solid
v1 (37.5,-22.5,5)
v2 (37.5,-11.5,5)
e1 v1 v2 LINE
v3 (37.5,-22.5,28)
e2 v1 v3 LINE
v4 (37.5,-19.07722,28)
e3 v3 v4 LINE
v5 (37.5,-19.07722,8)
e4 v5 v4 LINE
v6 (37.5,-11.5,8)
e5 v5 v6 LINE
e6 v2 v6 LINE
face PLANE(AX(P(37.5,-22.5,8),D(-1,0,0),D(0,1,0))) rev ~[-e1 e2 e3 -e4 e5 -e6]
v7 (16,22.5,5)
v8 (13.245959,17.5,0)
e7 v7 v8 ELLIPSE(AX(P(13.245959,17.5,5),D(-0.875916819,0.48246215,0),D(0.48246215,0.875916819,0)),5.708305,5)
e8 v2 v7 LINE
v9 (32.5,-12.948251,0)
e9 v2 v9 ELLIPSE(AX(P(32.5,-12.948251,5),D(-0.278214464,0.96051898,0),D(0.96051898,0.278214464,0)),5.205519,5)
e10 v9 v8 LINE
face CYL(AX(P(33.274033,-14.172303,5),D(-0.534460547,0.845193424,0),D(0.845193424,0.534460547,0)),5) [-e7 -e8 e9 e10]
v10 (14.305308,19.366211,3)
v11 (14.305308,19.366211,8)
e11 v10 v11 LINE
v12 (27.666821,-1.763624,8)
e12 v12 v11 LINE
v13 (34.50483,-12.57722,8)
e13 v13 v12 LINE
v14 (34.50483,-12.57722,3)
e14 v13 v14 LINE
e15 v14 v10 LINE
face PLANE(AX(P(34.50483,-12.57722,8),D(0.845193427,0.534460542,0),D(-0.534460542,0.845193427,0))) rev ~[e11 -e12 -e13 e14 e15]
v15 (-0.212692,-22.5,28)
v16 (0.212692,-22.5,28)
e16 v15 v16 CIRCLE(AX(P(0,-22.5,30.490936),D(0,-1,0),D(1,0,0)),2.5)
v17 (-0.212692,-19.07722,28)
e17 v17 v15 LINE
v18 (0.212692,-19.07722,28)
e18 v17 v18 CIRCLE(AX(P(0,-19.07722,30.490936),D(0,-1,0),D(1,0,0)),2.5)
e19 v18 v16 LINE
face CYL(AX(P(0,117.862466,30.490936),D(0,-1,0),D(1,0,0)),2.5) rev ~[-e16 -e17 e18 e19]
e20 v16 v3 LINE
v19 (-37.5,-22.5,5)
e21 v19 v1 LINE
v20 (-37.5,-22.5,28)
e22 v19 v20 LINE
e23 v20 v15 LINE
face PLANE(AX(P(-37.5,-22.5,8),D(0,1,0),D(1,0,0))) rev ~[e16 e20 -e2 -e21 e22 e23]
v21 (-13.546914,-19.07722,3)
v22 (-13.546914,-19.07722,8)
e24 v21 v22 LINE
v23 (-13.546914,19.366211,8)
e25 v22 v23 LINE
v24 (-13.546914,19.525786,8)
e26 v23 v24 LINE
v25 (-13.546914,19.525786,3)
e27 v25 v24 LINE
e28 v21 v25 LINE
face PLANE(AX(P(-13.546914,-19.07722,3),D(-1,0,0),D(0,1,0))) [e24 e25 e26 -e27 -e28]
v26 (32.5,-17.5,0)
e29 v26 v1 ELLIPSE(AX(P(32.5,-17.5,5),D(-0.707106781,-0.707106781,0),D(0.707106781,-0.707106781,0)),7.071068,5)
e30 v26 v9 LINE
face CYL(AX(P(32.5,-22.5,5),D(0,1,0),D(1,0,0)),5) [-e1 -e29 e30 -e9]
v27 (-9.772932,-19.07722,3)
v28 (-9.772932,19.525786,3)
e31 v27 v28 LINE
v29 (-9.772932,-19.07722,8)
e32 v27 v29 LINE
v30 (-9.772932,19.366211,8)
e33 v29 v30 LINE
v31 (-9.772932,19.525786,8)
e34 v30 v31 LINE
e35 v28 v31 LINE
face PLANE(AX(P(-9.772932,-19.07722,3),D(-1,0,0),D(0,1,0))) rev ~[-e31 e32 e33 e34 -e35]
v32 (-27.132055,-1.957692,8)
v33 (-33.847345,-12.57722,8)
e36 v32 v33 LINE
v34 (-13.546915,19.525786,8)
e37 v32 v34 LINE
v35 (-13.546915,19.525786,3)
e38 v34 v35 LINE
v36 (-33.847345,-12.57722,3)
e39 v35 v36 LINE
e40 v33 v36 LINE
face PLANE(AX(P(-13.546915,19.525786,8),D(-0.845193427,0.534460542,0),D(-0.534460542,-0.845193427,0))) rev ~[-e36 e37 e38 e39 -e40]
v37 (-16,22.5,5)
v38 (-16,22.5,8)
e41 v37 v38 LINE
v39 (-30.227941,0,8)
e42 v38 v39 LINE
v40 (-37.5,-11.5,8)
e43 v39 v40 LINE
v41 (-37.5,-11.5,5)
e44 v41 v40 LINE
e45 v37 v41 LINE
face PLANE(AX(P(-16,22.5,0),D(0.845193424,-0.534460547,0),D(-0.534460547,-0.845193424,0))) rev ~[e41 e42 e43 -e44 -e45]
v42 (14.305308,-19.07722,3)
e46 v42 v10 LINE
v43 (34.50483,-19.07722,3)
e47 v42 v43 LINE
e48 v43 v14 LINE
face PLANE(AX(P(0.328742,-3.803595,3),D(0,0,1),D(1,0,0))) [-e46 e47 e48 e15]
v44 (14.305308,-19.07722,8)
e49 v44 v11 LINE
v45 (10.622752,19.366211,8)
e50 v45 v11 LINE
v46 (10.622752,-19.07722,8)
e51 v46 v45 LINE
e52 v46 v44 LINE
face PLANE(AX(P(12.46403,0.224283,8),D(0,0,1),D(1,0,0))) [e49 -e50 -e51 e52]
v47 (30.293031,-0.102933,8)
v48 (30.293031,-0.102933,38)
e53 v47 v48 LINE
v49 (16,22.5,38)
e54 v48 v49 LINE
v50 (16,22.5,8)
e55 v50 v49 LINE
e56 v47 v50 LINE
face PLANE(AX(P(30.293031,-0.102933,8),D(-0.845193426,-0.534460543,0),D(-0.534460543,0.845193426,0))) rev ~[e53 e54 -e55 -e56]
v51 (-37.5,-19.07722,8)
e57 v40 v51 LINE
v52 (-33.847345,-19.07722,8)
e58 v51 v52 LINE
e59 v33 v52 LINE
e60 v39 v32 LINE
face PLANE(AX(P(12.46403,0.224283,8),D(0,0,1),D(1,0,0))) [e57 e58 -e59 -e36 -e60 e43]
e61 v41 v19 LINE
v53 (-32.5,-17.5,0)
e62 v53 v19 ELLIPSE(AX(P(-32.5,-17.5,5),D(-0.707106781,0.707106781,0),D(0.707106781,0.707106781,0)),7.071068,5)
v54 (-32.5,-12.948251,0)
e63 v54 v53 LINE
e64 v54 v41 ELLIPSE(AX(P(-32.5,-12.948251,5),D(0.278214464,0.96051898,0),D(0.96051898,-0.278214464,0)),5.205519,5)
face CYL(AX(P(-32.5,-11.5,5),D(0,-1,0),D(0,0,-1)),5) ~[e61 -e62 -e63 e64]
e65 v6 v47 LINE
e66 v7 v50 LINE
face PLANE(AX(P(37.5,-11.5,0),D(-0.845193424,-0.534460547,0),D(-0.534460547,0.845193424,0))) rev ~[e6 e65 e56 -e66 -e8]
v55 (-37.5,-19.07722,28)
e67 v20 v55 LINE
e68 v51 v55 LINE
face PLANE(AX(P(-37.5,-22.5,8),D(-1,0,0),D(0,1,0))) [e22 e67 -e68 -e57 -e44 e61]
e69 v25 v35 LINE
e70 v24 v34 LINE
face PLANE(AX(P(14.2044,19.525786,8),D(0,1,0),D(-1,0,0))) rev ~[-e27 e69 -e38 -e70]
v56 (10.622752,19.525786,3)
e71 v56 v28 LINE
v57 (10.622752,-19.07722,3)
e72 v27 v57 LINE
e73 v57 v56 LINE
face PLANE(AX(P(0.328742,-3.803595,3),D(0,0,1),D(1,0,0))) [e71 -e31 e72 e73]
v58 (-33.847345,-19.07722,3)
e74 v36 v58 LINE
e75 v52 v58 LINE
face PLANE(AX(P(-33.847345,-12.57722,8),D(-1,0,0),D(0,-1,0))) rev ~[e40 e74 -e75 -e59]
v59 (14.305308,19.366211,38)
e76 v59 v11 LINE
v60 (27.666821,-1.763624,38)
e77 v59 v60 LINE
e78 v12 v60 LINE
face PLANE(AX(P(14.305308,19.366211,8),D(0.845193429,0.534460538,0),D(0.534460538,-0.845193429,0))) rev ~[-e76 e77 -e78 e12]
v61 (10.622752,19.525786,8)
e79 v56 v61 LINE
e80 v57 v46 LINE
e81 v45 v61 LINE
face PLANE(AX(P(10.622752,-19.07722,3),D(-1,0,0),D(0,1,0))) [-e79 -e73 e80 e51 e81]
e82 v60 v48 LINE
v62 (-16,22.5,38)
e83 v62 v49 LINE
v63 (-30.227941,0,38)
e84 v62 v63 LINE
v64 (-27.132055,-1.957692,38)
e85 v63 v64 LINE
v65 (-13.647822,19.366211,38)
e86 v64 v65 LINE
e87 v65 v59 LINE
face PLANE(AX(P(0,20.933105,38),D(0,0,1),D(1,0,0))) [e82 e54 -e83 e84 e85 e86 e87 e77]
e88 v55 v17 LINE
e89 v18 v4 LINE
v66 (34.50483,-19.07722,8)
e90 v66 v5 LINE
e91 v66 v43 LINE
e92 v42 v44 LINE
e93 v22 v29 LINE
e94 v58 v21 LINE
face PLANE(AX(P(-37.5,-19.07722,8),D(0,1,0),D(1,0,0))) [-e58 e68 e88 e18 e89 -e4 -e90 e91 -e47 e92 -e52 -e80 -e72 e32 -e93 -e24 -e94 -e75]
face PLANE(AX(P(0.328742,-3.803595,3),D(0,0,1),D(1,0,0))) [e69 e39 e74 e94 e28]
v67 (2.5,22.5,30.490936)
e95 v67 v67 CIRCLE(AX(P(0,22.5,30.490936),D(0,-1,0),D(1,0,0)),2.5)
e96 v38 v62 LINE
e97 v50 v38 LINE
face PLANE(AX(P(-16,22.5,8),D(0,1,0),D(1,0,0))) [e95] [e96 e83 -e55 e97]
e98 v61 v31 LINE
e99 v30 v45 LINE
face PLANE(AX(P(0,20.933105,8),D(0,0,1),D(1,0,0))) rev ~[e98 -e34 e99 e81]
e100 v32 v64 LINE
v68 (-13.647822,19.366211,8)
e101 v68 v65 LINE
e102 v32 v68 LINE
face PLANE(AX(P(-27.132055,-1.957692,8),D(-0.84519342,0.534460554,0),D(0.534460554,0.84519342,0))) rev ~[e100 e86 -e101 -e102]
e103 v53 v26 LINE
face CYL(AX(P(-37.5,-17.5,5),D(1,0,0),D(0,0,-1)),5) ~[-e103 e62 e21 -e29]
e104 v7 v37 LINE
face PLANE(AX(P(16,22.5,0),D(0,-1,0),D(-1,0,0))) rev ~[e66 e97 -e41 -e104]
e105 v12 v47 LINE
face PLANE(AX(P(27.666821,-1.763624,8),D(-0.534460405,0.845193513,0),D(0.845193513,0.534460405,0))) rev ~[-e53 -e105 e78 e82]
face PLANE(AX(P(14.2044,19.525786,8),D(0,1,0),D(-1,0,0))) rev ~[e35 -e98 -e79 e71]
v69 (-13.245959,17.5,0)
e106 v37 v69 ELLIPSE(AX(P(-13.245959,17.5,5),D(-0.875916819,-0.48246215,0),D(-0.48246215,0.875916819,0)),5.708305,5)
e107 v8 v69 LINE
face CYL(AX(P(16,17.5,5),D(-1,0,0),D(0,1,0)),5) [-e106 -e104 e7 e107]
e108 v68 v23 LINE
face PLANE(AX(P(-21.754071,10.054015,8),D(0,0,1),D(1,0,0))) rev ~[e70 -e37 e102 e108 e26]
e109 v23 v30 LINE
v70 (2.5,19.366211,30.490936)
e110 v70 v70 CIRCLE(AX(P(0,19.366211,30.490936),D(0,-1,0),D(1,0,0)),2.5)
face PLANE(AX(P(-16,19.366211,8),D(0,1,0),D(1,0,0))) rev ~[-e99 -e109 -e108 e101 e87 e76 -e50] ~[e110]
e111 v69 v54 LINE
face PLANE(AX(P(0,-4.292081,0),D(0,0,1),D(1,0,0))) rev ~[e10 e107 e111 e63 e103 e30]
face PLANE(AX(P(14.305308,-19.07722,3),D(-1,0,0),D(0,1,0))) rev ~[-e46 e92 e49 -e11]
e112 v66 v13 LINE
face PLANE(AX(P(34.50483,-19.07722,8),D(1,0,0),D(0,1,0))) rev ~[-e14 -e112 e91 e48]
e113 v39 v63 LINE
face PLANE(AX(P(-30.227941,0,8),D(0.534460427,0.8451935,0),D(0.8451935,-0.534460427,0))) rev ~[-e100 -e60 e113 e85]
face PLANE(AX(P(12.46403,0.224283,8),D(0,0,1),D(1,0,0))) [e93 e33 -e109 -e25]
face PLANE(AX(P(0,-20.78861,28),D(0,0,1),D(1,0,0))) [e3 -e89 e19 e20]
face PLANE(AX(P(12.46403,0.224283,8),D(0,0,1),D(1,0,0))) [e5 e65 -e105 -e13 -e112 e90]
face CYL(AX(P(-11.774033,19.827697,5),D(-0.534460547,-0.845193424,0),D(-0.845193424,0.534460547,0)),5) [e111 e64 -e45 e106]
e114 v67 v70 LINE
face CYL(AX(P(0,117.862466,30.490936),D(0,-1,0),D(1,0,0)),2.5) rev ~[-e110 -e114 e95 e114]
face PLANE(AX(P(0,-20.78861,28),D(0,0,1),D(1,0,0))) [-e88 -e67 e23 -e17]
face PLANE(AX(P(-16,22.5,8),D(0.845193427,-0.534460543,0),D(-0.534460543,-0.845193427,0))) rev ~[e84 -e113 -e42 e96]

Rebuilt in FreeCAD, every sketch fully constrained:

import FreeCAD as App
import Part
import Sketcher
from FreeCAD import Vector


def edges_at(feature, points):
    """Names of the edges that pass closest to the given points."""
    edges = feature.Shape.Edges
    near = lambda p: min(range(len(edges)), key=lambda i: edges[i].distToShape(Part.Vertex(*p))[0])
    return sorted({f"Edge{near(p) + 1}" for p in points})


def add_polygon(sketch, points):
    """Adds a closed chain of lines whose ends are joined by coincident constraints."""
    first, n = sketch.GeometryCount, len(points)
    for a, b in zip(points, points[1:] + points[:1]):
        sketch.addGeometry(Part.LineSegment(App.Vector(*a, 0), App.Vector(*b, 0)), False)
    for i in range(n):
        sketch.addConstraint(Sketcher.Constraint("Coincident", first + i, 2, first + (i + 1) % n, 1))

doc = App.newDocument("Part")
body = doc.addObject("PartDesign::Body", "Body")

sketch1 = doc.addObject("Sketcher::SketchObject", "Sketch")
body.addObject(sketch1)
sketch1.AttachmentSupport = (doc.XY_Plane, [""])
sketch1.MapMode = "FlatFace"
add_polygon(sketch1, [(-38, -22), (38, -22), (38, -12), (16, 22), (-16, 22), (-38, -12)])
sketch1.addConstraint([
    Sketcher.Constraint("Horizontal", 0),
    Sketcher.Constraint("Vertical", 1),
    Sketcher.Constraint("Horizontal", 3),
    Sketcher.Constraint("Vertical", 5),
    Sketcher.Constraint("Symmetric", 1, 2, 4, 2, -2),
    Sketcher.Constraint("Equal", 2, 4),
    Sketcher.Constraint("DistanceX", 0, 1, 0, 2, 75.0),
    Sketcher.Constraint("DistanceX", 3, 2, 3, 1, 32.0),
    Sketcher.Constraint("DistanceY", 1, 1, 1, 2, 11.0),
    Sketcher.Constraint("DistanceY", 1, 2, 2, 2, 34.0),
    Sketcher.Constraint("DistanceY", 0, 2, -1, 1, 22.5),
])
pad1 = doc.addObject("PartDesign::Pad", "Pad")
body.addObject(pad1)
pad1.Profile = sketch1
pad1.Length = 8

sketch2 = doc.addObject("Sketcher::SketchObject", "Sketch001")
body.addObject(sketch2)
sketch2.AttachmentSupport = (doc.XY_Plane, [""])
sketch2.MapMode = "FlatFace"
sketch2.AttachmentOffset = App.Placement(Vector(0, 0, 8), App.Rotation())
add_polygon(sketch2, [(-14, 20), (-34, -13), (-34, -19), (35, -19), (35, -13), (14, 20)])
sketch2.addConstraint([
    Sketcher.Constraint("Vertical", 1),
    Sketcher.Constraint("Horizontal", 2),
    Sketcher.Constraint("Vertical", 3),
    Sketcher.Constraint("Horizontal", 5),
    Sketcher.Constraint("Horizontal", 0, 2, 3, 2),
    Sketcher.Constraint("Equal", 0, 4),
    Sketcher.Constraint("DistanceY", 1, 2, 1, 1, 6.5),
    Sketcher.Constraint("DistanceX", -1, 1, 4, 2, 14.2044),
    Sketcher.Constraint("Distance", 0, 37.983028),
    Sketcher.Constraint("DistanceX", 2, 1, 2, 2, 68.352175),
    Sketcher.Constraint("DistanceX", 5, 2, 5, 1, 27.751315),
    Sketcher.Constraint("DistanceY", 0, 2, -1, 1, 12.57722),
])
pocket1 = doc.addObject("PartDesign::Pocket", "Pocket")
body.addObject(pocket1)
pocket1.Profile = sketch2
pocket1.Length = 5

sketch3 = doc.addObject("Sketcher::SketchObject", "Sketch002")
body.addObject(sketch3)
sketch3.AttachmentSupport = (doc.XY_Plane, [""])
sketch3.MapMode = "FlatFace"
sketch3.AttachmentOffset = App.Placement(Vector(0, 0, 3), App.Rotation())
add_polygon(sketch3, [(-13.5, 19.5), (-13.5, -19.1), (-9.8, -19.1), (-9.8, 19.5)])
add_polygon(sketch3, [(10.6, 19.5), (10.6, -19.1), (14.3, -19.1), (14.3, 19.5)])
sketch3.addConstraint([
    Sketcher.Constraint("Vertical", 0),
    Sketcher.Constraint("Horizontal", 1),
    Sketcher.Constraint("Vertical", 2),
    Sketcher.Constraint("Horizontal", 3),
    Sketcher.Constraint("Vertical", 4),
    Sketcher.Constraint("Horizontal", 5),
    Sketcher.Constraint("Vertical", 6),
    Sketcher.Constraint("Horizontal", 7),
    Sketcher.Constraint("Horizontal", 1, 2, 4, 2),
    Sketcher.Constraint("Horizontal", 3, 2, 6, 2),
    Sketcher.Constraint("DistanceX", 1, 1, 1, 2, 3.773983),
    Sketcher.Constraint("DistanceX", 5, 1, 5, 2, 3.682556),
    Sketcher.Constraint("DistanceY", 0, 2, 0, 1, 38.603006),
    Sketcher.Constraint("DistanceY", 0, 2, -1, 1, 19.07722),
    Sketcher.Constraint("DistanceX", 1, 2, -1, 1, 9.772932),
    Sketcher.Constraint("DistanceX", 1, 2, 5, 2, 24.07824),
])
pad2 = doc.addObject("PartDesign::Pad", "Pad001")
body.addObject(pad2)
pad2.Profile = sketch3
pad2.Length = 5

sketch4 = doc.addObject("Sketcher::SketchObject", "Sketch003")
body.addObject(sketch4)
sketch4.AttachmentSupport = (doc.XY_Plane, [""])
sketch4.MapMode = "FlatFace"
sketch4.AttachmentOffset = App.Placement(Vector(0, 0, 8), App.Rotation())
add_polygon(sketch4, [(-37.5, -19.1), (-37.5, -22.5), (37.5, -22.5), (37.5, -19.1)])
sketch4.addConstraint([
    Sketcher.Constraint("Vertical", 0),
    Sketcher.Constraint("Horizontal", 1),
    Sketcher.Constraint("Vertical", 2),
    Sketcher.Constraint("Horizontal", 3),
    Sketcher.Constraint("DistanceX", 1, 1, 1, 2, 75.0),
    Sketcher.Constraint("DistanceX", 0, 2, -1, 1, 37.5),
    Sketcher.Constraint("DistanceY", 0, 2, -1, 1, 22.5),
    Sketcher.Constraint("DistanceY", 0, 2, 0, 1, 3.42278),
])
pad3 = doc.addObject("PartDesign::Pad", "Pad002")
body.addObject(pad3)
pad3.Profile = sketch4
pad3.Length = 20

sketch5 = doc.addObject("Sketcher::SketchObject", "Sketch004")
body.addObject(sketch5)
sketch5.AttachmentSupport = (doc.XY_Plane, [""])
sketch5.MapMode = "FlatFace"
sketch5.AttachmentOffset = App.Placement(Vector(0, 0, 8), App.Rotation())
add_polygon(sketch5, [(-16, 22.5), (-16, 19.4), (16, 19.4), (16, 22.5)])
sketch5.addConstraint([
    Sketcher.Constraint("Vertical", 0),
    Sketcher.Constraint("Horizontal", 1),
    Sketcher.Constraint("Vertical", 2),
    Sketcher.Constraint("Horizontal", 3),
    Sketcher.Constraint("DistanceX", 1, 1, 1, 2, 32.0),
    Sketcher.Constraint("DistanceX", 0, 2, -1, 1, 16.0),
    Sketcher.Constraint("DistanceY", -1, 1, 2, 2, 22.5),
    Sketcher.Constraint("DistanceY", 0, 2, 0, 1, 3.133789),
])
pad4 = doc.addObject("PartDesign::Pad", "Pad003")
body.addObject(pad4)
pad4.Profile = sketch5
pad4.Length = 30

sketch6 = doc.addObject("Sketcher::SketchObject", "Sketch005")
body.addObject(sketch6)
sketch6.AttachmentSupport = (doc.XY_Plane, [""])
sketch6.MapMode = "FlatFace"
sketch6.AttachmentOffset = App.Placement(Vector(0, 0, 8), App.Rotation())
add_polygon(sketch6, [(-13.6, 19.4), (-16, 22.5), (-30.2, 0), (-27.1, -2)])
sketch6.addConstraint([
    Sketcher.Constraint("PointOnObject", 1, 2, -1),
    Sketcher.Constraint("Perpendicular", 1, 2),
    Sketcher.Constraint("Perpendicular", 2, 3),
    Sketcher.Constraint("DistanceX", 0, 2, -1, 1, 16.0),
    Sketcher.Constraint("DistanceY", -1, 1, 0, 2, 22.5),
    Sketcher.Constraint("Distance", 0, 3.918338),
    Sketcher.Constraint("Distance", 2, 3.662932),
    Sketcher.Constraint("DistanceX", 1, 2, -1, 1, 30.227941),
])
pad5 = doc.addObject("PartDesign::Pad", "Pad004")
body.addObject(pad5)
pad5.Profile = sketch6
pad5.Length = 30

sketch7 = doc.addObject("Sketcher::SketchObject", "Sketch006")
body.addObject(sketch7)
sketch7.AttachmentSupport = (doc.XY_Plane, [""])
sketch7.MapMode = "FlatFace"
sketch7.AttachmentOffset = App.Placement(Vector(0, 0, 8), App.Rotation())
add_polygon(sketch7, [(16, 22.5), (14.3, 19.4), (27.7, -1.8), (30.3, -0.1)])
sketch7.addConstraint([
    Sketcher.Constraint("Perpendicular", 1, 2),
    Sketcher.Constraint("Perpendicular", 2, 3),
    Sketcher.Constraint("Distance", 1, 24.999999),
    Sketcher.Constraint("DistanceX", -1, 1, 3, 2, 16.0),
    Sketcher.Constraint("DistanceY", -1, 1, 3, 2, 22.5),
    Sketcher.Constraint("Distance", 0, 3.56267),
    Sketcher.Constraint("Distance", 2, 3.107229),
    Sketcher.Constraint("DistanceY", -1, 1, 0, 2, 19.366211),
])
pad6 = doc.addObject("PartDesign::Pad", "Pad005")
body.addObject(pad6)
pad6.Profile = sketch7
pad6.Length = 30
doc.recompute()

fillet = doc.addObject("PartDesign::Fillet", "Fillet")
body.addObject(fillet)
fillet.Base = (pad6, edges_at(pad6, [
    (0, -22.5, 0),
    (-37.5, -17, 0),
    (37.5, -17, 0),
    (26.75, 5.5, 0),
    (0, 22.5, 0),
    (-26.75, 5.5, 0),
]))
fillet.Radius = 5

sketch8 = doc.addObject("Sketcher::SketchObject", "Sketch007")
body.addObject(sketch8)
sketch8.AttachmentSupport = (doc.XZ_Plane, [""])
sketch8.MapMode = "FlatFace"
sketch8.AttachmentOffset = App.Placement(Vector(0, 0, -22.5), App.Rotation())
sketch8.addGeometry(Part.Circle(Vector(0, 30.5, 0), Vector(0, 0, 1), 2.5), False)
sketch8.addConstraint([
    Sketcher.Constraint("PointOnObject", 0, 3, -2),
    Sketcher.Constraint("Diameter", 0, 5.0),
    Sketcher.Constraint("DistanceY", -1, 1, 0, 3, 30.490936),
])
doc.recompute()
hole = doc.addObject("PartDesign::Hole", "Hole")
body.addObject(hole)
hole.Profile = sketch8
hole.ThreadType = "None"
hole.Diameter = 5
hole.DepthType = "ThroughAll"
hole.Reversed = True

doc.recompute()
